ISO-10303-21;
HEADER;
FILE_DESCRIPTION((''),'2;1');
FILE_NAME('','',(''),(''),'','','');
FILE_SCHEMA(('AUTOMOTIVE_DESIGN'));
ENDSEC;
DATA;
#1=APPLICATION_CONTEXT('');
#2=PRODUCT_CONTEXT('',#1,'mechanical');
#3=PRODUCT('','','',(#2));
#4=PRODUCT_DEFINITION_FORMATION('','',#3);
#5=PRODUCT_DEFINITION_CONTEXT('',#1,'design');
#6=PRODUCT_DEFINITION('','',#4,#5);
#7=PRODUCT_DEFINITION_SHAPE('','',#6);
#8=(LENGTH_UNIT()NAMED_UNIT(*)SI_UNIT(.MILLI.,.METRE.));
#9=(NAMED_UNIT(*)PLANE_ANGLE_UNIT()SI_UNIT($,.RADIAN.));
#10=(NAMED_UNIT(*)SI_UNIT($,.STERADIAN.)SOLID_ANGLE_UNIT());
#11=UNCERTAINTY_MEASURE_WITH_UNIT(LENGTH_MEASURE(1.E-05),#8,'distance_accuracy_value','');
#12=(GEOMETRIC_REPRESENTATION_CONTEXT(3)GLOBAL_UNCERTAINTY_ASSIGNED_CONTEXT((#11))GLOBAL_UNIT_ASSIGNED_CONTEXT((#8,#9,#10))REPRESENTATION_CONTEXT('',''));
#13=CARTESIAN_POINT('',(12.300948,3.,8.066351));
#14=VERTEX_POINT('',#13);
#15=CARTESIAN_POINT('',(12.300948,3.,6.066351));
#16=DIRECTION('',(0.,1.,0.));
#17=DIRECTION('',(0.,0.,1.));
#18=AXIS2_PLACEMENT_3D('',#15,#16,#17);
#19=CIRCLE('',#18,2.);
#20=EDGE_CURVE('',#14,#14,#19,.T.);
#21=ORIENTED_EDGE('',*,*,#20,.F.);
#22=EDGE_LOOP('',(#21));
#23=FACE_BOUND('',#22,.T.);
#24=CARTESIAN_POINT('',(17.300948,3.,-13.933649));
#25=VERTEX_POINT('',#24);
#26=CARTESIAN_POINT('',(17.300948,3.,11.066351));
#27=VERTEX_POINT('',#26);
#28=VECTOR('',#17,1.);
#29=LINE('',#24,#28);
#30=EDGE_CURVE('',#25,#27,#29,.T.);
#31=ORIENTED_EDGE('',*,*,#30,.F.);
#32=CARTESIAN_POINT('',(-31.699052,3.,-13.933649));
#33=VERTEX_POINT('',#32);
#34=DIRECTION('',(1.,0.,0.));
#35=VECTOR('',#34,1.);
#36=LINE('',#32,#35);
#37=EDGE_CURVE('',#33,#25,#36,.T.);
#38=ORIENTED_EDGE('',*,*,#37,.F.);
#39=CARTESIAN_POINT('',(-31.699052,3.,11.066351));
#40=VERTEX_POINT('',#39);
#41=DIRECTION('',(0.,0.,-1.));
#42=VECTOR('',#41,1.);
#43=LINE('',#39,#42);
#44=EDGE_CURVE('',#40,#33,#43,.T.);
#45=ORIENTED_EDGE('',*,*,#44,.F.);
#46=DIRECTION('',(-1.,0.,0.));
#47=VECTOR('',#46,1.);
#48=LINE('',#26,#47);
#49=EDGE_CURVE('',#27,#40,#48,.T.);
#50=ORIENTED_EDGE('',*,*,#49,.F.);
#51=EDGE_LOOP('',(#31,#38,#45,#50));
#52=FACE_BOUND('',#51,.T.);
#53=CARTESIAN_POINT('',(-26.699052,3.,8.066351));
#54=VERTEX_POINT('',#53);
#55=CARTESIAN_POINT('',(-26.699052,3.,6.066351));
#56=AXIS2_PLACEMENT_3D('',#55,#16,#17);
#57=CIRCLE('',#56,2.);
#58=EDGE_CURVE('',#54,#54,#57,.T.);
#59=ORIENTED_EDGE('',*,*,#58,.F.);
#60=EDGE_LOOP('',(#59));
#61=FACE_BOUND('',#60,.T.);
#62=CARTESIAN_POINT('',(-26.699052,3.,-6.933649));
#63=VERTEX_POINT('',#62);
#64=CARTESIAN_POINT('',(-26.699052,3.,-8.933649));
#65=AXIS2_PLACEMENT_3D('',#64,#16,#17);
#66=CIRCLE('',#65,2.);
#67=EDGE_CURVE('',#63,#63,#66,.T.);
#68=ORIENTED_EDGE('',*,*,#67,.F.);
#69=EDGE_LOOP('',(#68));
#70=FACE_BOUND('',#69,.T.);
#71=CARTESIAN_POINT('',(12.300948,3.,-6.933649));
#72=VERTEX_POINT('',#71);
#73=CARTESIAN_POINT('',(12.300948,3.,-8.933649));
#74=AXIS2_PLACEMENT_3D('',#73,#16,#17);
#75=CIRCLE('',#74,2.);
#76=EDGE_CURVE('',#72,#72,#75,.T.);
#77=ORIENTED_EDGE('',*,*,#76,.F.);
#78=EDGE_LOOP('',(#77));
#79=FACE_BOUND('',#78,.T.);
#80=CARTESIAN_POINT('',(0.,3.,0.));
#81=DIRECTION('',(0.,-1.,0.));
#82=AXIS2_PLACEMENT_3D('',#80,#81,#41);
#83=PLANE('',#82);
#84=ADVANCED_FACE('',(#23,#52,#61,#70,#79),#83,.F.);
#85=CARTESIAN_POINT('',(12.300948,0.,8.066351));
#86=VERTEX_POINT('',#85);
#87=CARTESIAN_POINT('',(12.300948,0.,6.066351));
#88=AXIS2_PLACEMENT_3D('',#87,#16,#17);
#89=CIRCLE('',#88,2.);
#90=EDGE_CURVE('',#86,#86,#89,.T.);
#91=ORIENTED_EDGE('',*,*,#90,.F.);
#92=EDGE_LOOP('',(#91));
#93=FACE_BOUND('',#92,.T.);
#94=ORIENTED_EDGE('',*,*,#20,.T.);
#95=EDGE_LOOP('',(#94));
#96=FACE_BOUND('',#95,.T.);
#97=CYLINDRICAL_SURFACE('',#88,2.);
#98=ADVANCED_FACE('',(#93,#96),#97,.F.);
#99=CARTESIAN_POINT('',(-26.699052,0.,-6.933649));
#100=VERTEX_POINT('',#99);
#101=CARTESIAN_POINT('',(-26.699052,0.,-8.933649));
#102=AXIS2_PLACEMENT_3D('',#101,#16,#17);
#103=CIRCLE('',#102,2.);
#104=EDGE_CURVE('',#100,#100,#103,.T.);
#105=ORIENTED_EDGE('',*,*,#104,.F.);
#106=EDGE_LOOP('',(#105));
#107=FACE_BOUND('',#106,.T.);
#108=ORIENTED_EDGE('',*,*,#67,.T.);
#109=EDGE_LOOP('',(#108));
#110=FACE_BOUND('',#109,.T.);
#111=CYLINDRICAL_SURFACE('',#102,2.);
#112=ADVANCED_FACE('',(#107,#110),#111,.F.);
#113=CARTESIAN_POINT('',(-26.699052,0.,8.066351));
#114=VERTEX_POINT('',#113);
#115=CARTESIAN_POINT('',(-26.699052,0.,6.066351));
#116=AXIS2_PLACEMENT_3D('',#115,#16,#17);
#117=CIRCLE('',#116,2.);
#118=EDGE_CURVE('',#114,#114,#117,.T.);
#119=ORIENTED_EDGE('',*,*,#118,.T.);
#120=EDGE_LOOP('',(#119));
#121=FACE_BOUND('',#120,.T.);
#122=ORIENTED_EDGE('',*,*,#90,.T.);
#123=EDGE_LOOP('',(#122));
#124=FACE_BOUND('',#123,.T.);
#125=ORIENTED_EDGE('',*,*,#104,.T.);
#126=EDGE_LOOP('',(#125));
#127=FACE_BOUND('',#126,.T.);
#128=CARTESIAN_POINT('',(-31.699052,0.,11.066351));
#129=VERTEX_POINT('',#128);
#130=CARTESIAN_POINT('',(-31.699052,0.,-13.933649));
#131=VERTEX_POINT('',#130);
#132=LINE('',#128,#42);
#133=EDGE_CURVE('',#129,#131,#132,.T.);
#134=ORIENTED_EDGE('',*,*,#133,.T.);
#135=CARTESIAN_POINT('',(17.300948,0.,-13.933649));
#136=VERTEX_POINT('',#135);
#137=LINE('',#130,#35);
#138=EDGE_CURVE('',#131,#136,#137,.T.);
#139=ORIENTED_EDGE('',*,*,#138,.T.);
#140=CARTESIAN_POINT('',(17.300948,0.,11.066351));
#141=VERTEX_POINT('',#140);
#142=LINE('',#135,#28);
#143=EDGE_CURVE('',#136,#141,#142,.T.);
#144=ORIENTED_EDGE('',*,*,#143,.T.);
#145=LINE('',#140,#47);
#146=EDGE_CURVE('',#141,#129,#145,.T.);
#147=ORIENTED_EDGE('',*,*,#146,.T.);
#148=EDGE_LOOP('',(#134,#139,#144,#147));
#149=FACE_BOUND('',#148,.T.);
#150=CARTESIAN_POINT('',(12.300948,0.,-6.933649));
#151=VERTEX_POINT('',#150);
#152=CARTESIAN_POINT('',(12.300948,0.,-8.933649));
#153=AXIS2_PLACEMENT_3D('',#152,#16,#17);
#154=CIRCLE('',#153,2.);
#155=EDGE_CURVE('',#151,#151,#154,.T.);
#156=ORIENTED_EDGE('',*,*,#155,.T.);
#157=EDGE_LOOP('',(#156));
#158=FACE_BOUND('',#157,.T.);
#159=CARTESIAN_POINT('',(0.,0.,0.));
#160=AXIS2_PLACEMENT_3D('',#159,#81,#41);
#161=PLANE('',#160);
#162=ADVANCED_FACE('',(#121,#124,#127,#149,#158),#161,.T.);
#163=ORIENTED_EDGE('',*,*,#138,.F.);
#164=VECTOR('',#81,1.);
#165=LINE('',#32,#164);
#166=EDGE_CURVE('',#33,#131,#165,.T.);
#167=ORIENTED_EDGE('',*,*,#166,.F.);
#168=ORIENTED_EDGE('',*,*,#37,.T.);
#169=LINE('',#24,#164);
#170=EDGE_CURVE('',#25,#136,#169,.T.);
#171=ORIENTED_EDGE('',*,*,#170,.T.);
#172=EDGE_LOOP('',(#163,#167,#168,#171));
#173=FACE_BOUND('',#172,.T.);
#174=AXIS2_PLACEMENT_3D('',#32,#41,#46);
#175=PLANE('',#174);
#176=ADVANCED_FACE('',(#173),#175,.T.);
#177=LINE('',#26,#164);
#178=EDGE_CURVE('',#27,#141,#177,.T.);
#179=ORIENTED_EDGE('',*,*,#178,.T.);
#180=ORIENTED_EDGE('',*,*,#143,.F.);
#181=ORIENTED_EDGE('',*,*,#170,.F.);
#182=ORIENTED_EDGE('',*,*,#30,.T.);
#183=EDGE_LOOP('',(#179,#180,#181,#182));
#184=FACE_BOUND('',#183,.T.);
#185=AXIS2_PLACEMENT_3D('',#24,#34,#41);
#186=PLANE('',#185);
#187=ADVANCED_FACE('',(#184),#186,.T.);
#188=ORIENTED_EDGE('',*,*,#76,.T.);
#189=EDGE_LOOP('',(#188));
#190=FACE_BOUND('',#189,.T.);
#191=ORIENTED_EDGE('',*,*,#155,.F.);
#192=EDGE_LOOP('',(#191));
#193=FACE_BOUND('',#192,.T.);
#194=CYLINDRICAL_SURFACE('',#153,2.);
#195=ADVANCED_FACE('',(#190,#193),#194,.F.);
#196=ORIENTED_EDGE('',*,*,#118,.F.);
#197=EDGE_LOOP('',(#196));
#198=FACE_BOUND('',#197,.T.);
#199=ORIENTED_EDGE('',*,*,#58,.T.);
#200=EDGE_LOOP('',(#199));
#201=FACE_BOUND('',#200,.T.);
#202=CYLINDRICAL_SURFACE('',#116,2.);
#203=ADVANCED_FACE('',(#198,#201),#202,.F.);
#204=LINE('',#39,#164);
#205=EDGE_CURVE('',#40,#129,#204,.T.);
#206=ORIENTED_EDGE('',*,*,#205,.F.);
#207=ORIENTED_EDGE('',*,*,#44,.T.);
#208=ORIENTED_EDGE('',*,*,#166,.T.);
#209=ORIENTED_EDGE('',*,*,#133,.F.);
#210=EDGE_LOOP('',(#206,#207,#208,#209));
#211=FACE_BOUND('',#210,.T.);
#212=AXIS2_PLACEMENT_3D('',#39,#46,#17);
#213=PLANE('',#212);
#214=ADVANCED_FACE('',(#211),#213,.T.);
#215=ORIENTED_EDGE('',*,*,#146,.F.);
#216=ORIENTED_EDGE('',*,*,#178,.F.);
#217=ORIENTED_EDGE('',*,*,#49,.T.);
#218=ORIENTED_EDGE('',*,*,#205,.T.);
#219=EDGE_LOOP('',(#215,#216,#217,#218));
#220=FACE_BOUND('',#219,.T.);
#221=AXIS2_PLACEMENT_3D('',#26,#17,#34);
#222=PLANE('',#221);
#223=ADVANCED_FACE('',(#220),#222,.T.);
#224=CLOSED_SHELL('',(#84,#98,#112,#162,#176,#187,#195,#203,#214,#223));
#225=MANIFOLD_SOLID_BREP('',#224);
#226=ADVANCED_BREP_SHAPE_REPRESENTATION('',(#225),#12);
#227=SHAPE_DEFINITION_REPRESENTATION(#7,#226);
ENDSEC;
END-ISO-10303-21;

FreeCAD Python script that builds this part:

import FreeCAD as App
import Part
import Sketcher
from FreeCAD import Vector
Q = App.Units.Quantity

doc = App.newDocument("Part")
body = doc.addObject("PartDesign::Body", "Body")

sketch1 = doc.addObject("Sketcher::SketchObject", "Sketch")
body.addObject(sketch1)
sketch1.AttachmentSupport = (doc.XZ_Plane, [""])
sketch1.MapMode = "FlatFace"
sketch1.addGeometry(Part.LineSegment(Vector(-31.699052, -13.933649, 0), Vector(-31.699052, 11.066351, 0)), False)
sketch1.addGeometry(Part.LineSegment(Vector(-31.699052, 11.066351, 0), Vector(17.300948, 11.066351, 0)), False)
sketch1.addGeometry(Part.LineSegment(Vector(17.300948, 11.066351, 0), Vector(17.300948, -13.933649, 0)), False)
sketch1.addGeometry(Part.LineSegment(Vector(17.300948, -13.933649, 0), Vector(-31.699052, -13.933649, 0)), False)
sketch1.addConstraint(Sketcher.Constraint("Coincident", 0, 2, 1, 1))
sketch1.addConstraint(Sketcher.Constraint("Coincident", 1, 2, 2, 1))
sketch1.addConstraint(Sketcher.Constraint("Coincident", 2, 2, 3, 1))
sketch1.addConstraint(Sketcher.Constraint("Coincident", 3, 2, 0, 1))
sketch1.addConstraint(Sketcher.Constraint("Vertical", 0))
sketch1.addConstraint(Sketcher.Constraint("Horizontal", 1))
sketch1.addConstraint(Sketcher.Constraint("Vertical", 2))
sketch1.addConstraint(Sketcher.Constraint("Horizontal", 3))
sketch1.addConstraint(Sketcher.Constraint("DistanceX", 1, 1, 1, 2, Q("49 mm")))
sketch1.addConstraint(Sketcher.Constraint("DistanceY", 0, 1, 0, 2, Q("25 mm")))
sketch1.addConstraint(Sketcher.Constraint("DistanceY", -1, 1, 0, 2, Q("11.066351 mm")))
sketch1.addConstraint(Sketcher.Constraint("DistanceX", 0, 2, -1, 1, Q("31.699052 mm")))
pad1 = doc.addObject("PartDesign::Pad", "Pad")
body.addObject(pad1)
pad1.Profile = sketch1
pad1.Length = 3
pad1.Reversed = True

sketch2 = doc.addObject("Sketcher::SketchObject", "Sketch001")
body.addObject(sketch2)
sketch2.AttachmentSupport = (doc.XZ_Plane, [""])
sketch2.MapMode = "FlatFace"
sketch2.AttachmentOffset = App.Placement(Vector(0, 0, -3), App.Rotation())
sketch2.addGeometry(Part.Circle(Vector(-26.699052, -8.933649, 0), Vector(0, 0, 1), 2), False)
sketch2.addGeometry(Part.Circle(Vector(-26.699052, 6.066351, 0), Vector(0, 0, 1), 2), False)
sketch2.addGeometry(Part.Circle(Vector(12.300948, -8.933649, 0), Vector(0, 0, 1), 2), False)
sketch2.addGeometry(Part.Circle(Vector(12.300948, 6.066351, 0), Vector(0, 0, 1), 2), False)
sketch2.addConstraint(Sketcher.Constraint("Equal", 0, 1))
sketch2.addConstraint(Sketcher.Constraint("Equal", 1, 2))
sketch2.addConstraint(Sketcher.Constraint("Equal", 2, 3))
sketch2.addConstraint(Sketcher.Constraint("Horizontal", 0, 3, 2, 3))
sketch2.addConstraint(Sketcher.Constraint("Horizontal", 1, 3, 3, 3))
sketch2.addConstraint(Sketcher.Constraint("Vertical", 0, 3, 1, 3))
sketch2.addConstraint(Sketcher.Constraint("Vertical", 2, 3, 3, 3))
sketch2.addConstraint(Sketcher.Constraint("Diameter", 0, Q("4 mm")))
sketch2.addConstraint(Sketcher.Constraint("DistanceY", 0, 3, 1, 3, Q("15 mm")))
sketch2.addConstraint(Sketcher.Constraint("DistanceX", 0, 3, 2, 3, Q("39 mm")))
sketch2.addConstraint(Sketcher.Constraint("DistanceY", 0, 3, -1, 1, Q("8.933649 mm")))
sketch2.addConstraint(Sketcher.Constraint("DistanceX", 0, 3, -1, 1, Q("26.699052 mm")))
pocket1 = doc.addObject("PartDesign::Pocket", "Pocket")
body.addObject(pocket1)
pocket1.Profile = sketch2
pocket1.Length = 3
pocket1.Reversed = True

doc.recompute()
